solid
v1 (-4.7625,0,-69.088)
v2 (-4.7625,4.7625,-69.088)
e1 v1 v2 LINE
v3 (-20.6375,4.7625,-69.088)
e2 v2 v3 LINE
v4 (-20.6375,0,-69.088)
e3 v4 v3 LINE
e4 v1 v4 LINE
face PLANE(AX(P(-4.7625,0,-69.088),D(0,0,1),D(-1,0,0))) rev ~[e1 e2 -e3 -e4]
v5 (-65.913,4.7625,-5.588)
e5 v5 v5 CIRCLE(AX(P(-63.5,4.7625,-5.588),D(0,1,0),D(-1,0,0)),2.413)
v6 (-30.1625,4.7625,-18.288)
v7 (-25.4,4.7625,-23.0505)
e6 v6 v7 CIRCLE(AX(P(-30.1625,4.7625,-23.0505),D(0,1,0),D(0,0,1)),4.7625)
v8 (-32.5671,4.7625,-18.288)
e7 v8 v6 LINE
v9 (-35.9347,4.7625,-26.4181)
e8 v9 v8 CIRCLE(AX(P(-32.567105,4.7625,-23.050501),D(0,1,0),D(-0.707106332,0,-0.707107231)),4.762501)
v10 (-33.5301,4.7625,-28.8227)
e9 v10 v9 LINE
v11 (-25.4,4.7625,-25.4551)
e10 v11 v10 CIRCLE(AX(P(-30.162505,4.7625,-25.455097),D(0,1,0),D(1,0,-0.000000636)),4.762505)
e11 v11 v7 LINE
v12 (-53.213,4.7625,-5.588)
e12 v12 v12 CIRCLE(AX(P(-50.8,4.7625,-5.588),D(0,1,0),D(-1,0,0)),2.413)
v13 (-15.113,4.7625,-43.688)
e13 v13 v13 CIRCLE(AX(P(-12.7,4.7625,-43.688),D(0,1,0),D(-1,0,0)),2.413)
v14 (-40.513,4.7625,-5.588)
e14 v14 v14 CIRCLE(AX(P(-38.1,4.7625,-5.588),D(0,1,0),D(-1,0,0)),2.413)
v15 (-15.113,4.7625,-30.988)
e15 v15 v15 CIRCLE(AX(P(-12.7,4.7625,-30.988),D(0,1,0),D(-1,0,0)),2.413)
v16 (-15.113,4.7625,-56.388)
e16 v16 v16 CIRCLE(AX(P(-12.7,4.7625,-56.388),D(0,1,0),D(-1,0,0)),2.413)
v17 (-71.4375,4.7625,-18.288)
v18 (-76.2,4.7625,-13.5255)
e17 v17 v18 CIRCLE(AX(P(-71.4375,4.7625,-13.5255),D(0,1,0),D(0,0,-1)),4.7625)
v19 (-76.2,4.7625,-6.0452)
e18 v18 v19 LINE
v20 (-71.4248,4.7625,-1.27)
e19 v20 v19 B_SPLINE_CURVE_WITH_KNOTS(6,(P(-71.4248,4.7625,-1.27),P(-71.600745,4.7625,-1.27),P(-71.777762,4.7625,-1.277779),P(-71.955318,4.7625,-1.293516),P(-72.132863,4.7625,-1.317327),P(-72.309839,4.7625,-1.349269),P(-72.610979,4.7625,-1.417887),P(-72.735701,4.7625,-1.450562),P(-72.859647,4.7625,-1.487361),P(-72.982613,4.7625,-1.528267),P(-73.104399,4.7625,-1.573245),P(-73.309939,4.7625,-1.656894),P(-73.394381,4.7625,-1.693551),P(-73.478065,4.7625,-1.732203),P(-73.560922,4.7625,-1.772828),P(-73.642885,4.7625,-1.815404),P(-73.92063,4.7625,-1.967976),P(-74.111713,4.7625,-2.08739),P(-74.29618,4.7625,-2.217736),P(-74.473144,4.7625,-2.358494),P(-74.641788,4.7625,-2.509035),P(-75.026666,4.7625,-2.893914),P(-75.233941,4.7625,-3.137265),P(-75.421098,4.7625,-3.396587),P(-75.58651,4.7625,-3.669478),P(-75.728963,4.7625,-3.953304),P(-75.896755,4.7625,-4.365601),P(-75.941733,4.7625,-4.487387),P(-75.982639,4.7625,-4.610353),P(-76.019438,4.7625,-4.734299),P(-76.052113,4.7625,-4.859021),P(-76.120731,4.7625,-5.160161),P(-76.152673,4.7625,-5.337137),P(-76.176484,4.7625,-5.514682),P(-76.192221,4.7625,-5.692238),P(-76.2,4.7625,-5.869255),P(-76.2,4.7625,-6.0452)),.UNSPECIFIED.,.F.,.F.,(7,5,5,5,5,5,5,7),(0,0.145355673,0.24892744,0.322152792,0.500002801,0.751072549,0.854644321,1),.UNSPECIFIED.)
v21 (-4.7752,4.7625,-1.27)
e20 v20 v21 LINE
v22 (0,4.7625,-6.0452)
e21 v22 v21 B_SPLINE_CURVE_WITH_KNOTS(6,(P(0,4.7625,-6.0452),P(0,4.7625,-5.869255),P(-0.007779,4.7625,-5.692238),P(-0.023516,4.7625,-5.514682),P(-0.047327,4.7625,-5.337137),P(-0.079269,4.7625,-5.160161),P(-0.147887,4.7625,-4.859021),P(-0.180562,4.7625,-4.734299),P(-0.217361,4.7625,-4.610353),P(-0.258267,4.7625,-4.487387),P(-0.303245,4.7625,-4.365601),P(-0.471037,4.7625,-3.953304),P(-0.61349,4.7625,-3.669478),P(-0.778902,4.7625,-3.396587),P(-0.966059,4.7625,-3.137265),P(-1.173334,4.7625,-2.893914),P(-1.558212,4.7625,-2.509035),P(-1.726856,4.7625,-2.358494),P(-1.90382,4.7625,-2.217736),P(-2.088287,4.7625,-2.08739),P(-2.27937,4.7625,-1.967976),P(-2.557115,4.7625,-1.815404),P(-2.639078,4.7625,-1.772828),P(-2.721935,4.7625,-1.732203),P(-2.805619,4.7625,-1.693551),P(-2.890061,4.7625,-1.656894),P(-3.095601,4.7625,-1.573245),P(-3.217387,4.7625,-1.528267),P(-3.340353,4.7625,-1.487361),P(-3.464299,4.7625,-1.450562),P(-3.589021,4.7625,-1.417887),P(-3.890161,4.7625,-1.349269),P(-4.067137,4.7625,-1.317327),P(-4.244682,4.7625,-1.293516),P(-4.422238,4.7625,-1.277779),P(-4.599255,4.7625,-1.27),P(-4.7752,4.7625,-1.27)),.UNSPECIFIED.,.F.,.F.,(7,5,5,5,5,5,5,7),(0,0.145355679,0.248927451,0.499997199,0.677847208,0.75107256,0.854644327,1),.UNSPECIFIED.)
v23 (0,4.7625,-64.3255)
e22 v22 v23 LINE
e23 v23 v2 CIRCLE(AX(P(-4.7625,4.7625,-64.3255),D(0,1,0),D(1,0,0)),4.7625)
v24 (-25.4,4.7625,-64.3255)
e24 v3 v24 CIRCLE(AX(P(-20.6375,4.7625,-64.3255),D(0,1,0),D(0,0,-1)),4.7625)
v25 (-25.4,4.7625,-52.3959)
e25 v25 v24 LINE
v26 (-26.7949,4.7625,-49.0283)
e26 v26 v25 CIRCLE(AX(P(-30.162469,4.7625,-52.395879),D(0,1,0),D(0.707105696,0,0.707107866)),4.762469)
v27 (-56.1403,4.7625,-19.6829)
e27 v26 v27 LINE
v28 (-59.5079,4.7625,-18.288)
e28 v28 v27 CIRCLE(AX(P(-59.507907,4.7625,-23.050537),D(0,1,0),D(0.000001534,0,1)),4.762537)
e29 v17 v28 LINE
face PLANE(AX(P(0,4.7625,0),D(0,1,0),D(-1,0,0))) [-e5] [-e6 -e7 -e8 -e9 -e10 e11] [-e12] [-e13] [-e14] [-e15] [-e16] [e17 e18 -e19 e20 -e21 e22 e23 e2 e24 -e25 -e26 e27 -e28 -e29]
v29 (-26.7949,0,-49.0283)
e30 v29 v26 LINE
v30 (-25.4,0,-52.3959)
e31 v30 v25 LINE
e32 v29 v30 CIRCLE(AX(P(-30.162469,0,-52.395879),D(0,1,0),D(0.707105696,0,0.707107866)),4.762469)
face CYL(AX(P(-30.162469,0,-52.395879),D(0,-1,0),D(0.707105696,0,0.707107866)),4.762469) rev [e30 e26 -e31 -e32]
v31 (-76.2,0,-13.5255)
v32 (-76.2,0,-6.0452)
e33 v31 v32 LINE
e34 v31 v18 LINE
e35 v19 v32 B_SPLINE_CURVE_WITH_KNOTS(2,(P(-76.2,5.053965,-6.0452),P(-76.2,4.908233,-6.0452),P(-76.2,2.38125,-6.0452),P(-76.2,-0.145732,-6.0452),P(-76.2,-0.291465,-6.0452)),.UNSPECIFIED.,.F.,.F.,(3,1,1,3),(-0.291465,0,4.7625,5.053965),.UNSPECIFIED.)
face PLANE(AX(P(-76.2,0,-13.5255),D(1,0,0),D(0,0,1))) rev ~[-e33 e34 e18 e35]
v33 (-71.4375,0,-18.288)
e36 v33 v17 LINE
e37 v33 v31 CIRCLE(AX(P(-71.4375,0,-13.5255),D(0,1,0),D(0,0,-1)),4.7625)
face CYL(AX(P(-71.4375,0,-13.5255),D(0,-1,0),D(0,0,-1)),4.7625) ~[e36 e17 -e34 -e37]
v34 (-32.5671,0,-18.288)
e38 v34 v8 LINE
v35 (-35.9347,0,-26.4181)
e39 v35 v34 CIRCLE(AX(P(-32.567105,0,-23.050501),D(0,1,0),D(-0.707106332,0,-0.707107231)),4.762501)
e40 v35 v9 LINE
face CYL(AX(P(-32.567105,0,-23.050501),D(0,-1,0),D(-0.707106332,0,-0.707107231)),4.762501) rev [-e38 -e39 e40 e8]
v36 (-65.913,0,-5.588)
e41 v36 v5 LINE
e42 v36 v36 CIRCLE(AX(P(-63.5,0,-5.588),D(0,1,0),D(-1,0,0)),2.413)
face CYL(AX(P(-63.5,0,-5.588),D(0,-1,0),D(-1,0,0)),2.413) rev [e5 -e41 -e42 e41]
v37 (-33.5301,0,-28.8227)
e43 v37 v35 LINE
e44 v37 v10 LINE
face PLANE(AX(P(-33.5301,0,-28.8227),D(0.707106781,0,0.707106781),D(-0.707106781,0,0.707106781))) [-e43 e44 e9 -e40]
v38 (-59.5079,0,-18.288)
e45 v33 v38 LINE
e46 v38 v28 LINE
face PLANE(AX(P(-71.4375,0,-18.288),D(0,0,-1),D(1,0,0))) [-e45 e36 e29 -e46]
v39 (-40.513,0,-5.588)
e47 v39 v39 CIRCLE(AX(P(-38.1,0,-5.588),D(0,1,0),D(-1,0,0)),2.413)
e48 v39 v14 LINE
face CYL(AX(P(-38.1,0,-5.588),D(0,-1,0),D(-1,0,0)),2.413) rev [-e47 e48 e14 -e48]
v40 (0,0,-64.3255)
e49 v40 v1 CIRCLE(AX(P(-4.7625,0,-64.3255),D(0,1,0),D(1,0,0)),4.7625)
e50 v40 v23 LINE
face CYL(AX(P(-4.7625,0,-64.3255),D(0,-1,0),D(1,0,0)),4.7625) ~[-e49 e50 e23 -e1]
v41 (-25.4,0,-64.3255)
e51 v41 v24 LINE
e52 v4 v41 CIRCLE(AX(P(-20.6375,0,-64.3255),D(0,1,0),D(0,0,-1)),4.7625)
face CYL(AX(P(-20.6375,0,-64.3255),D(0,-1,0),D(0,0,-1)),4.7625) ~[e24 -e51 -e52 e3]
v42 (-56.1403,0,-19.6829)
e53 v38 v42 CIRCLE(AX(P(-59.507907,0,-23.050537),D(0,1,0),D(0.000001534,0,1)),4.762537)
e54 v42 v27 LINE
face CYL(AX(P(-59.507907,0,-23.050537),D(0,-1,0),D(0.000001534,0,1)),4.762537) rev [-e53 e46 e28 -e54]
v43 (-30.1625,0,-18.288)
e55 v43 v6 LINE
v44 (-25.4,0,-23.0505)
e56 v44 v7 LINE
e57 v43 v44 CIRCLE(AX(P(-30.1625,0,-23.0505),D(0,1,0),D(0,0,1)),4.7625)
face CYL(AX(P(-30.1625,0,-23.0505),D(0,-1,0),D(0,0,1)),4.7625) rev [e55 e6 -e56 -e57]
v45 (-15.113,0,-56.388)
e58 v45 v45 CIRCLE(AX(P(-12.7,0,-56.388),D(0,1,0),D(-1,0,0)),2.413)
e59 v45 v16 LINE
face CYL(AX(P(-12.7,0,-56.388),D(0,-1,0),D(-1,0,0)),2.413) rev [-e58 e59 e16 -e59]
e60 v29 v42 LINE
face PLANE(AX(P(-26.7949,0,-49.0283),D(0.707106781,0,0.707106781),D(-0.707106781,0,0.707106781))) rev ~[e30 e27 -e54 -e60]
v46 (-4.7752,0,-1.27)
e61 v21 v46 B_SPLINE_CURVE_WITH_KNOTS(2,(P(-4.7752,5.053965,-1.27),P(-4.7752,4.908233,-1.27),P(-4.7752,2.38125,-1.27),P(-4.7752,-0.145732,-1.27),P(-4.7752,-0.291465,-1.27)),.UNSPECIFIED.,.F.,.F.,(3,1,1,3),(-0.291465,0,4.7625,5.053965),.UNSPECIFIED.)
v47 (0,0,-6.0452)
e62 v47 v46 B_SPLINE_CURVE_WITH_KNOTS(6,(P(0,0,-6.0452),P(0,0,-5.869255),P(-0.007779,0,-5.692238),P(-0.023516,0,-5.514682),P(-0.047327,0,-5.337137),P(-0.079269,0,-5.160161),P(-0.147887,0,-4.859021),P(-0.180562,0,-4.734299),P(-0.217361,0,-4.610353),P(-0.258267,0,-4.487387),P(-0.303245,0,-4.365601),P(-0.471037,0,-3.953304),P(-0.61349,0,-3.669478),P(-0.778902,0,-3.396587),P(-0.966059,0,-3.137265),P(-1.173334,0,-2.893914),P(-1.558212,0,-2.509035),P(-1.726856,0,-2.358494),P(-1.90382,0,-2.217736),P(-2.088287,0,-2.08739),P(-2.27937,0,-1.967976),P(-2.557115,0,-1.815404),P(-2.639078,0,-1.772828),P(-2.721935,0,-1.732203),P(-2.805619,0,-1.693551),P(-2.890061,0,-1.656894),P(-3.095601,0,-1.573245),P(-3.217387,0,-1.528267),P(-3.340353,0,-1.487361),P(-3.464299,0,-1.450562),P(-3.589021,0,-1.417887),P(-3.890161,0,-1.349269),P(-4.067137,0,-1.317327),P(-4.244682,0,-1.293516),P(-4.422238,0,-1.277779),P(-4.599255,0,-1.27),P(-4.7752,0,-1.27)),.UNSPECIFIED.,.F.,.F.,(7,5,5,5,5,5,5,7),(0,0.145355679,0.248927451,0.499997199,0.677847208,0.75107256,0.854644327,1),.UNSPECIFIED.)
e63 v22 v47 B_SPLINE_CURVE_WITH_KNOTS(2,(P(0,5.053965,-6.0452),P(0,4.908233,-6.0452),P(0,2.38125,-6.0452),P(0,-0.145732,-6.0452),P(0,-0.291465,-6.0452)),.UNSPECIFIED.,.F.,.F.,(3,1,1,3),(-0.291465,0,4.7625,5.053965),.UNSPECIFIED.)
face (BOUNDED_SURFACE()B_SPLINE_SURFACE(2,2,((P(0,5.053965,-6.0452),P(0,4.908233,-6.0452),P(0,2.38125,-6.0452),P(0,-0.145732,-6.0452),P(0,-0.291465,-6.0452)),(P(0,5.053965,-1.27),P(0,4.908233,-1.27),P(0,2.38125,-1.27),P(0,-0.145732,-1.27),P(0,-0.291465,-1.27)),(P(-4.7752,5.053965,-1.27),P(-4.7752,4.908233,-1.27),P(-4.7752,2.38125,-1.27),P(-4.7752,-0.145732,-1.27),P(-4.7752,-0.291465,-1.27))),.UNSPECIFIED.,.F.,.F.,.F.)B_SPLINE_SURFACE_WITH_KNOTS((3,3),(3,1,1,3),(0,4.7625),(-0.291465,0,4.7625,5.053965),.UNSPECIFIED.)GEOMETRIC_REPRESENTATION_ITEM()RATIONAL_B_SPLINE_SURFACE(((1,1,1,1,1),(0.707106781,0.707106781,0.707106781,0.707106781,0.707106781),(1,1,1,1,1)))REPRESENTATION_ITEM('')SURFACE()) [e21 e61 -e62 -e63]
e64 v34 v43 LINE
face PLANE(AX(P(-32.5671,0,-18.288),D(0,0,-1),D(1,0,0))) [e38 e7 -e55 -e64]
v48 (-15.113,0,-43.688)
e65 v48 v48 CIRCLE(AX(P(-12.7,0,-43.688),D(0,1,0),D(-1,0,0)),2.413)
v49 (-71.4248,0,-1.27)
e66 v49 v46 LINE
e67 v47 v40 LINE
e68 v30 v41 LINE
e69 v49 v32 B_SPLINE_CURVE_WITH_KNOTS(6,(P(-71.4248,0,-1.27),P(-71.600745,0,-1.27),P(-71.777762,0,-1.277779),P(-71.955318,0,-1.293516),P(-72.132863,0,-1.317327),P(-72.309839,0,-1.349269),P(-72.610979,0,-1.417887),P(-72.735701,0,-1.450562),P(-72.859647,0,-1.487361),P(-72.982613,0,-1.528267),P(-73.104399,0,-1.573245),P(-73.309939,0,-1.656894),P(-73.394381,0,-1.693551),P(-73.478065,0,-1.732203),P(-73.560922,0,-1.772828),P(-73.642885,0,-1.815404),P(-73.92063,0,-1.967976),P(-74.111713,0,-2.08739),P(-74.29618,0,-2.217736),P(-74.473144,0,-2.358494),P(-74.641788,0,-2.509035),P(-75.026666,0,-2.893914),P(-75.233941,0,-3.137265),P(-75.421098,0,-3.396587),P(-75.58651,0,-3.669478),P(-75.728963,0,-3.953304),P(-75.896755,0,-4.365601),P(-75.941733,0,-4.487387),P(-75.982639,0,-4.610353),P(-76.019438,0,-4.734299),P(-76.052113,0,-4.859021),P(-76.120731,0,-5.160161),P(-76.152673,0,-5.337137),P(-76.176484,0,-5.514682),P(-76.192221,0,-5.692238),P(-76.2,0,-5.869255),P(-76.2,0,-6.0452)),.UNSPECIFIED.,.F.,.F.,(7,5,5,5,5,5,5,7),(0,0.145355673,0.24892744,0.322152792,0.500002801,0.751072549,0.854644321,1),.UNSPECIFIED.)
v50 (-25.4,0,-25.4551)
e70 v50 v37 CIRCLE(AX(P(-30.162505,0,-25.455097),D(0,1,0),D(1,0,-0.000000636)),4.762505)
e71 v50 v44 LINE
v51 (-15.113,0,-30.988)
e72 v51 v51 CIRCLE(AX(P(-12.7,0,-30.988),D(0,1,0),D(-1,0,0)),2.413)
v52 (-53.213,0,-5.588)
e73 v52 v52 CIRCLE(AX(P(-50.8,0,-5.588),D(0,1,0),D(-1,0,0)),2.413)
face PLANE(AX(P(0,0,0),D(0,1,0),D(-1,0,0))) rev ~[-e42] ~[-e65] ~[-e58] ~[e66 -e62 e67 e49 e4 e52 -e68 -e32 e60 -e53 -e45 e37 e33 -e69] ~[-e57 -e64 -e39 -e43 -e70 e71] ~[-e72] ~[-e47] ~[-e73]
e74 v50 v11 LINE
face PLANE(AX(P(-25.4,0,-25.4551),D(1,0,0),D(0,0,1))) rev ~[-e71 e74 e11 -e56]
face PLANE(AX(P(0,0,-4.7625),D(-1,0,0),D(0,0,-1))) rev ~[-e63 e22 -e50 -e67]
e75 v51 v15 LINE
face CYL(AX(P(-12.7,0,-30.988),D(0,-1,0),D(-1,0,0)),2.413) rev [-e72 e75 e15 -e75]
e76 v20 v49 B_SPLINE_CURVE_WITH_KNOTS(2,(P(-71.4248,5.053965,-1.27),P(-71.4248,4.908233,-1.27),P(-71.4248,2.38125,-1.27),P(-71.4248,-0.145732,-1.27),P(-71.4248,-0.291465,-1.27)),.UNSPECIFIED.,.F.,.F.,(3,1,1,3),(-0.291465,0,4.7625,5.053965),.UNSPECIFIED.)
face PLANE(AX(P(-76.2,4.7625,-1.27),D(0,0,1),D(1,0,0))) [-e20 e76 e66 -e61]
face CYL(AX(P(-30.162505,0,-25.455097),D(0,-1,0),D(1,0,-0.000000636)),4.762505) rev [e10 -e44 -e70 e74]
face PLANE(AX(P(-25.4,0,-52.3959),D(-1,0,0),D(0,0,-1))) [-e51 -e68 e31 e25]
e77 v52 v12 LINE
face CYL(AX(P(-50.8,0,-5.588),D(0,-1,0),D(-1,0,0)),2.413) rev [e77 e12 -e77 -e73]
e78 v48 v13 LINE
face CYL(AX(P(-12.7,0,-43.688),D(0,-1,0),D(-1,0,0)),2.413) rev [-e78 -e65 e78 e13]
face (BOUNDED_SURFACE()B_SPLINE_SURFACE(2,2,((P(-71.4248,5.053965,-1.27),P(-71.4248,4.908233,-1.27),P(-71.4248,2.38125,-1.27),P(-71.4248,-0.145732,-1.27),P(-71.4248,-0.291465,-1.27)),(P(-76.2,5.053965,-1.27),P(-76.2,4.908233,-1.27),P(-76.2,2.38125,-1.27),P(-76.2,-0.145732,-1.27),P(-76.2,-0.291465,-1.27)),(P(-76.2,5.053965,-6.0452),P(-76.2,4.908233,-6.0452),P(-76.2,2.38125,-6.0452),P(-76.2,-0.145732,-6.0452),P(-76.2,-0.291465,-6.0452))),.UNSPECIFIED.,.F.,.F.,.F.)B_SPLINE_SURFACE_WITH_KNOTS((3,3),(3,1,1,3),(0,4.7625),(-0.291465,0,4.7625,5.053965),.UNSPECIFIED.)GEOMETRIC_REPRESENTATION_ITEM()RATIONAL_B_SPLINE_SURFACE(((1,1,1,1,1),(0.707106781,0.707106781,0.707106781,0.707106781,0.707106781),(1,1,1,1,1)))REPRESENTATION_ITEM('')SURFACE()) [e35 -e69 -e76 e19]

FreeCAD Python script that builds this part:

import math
import FreeCAD as App
import Part
import Sketcher
from FreeCAD import Vector
Q = App.Units.Quantity


def edges_at(feature, points):
    """Names of the edges that pass closest to the given points."""
    edges = feature.Shape.Edges
    near = lambda p: min(range(len(edges)), key=lambda i: edges[i].distToShape(Part.Vertex(*p))[0])
    return sorted({f"Edge{near(p) + 1}" for p in points})

doc = App.newDocument("Part")
params = doc.addObject("Spreadsheet::Sheet", "Params")
for row, (alias, value) in enumerate([
    ("sketch1_diameter", "0.19 in"),
    ("sketch1_radius", "0.1875 in"),
    ("pad1_length", "0.1875 in"),
    ("sketch2_height", "0.05 in"),
    ("sketch2_width", "3 in"),
    ("fillet_radius", "0.188 in"),
], start=1):
    params.set(f"A{row}", alias)
    params.set(f"B{row}", "=" + value)
    params.setAlias(f"B{row}", alias)

body = doc.addObject("PartDesign::Body", "Body")

# Sketch on XZ plane
sketch1 = body.newObject("Sketcher::SketchObject", "Sketch")
sketch1.AttachmentSupport = (doc.getObject("XZ_Plane"), [""])
sketch1.MapMode = "FlatFace"
sketch1.addGeometry([
    Part.ArcOfCircle(Part.Circle(Vector(-4.8, -4.8, 0), Vector(0, 0, 1), 4.8), math.radians(0), math.radians(90)),  # 0
    Part.LineSegment(Vector(0, -4.8, 0), Vector(0, -64.3, 0)),  # 1
    Part.ArcOfCircle(Part.Circle(Vector(-4.8, -64.3, 0), Vector(0, 0, 1), 4.8), math.radians(-90), math.radians(0)),  # 2
    Part.LineSegment(Vector(-4.8, -69.1, 0), Vector(-20.6, -69.1, 0)),  # 3
    Part.ArcOfCircle(Part.Circle(Vector(-20.6, -64.3, 0), Vector(0, 0, 1), 4.8), math.radians(180), math.radians(270)),  # 4
    Part.LineSegment(Vector(-25.4, -64.3, 0), Vector(-25.4, -52.4, 0)),  # 5
    Part.ArcOfCircle(Part.Circle(Vector(-30.2, -52.4, 0), Vector(0, 0, 1), 4.8), math.radians(0), math.radians(45)),  # 6
    Part.LineSegment(Vector(-26.8, -49, 0), Vector(-56.1, -19.7, 0)),  # 7
    Part.ArcOfCircle(Part.Circle(Vector(-59.5, -23.1, 0), Vector(0, 0, 1), 4.8), math.radians(45), math.radians(90)),  # 8
    Part.LineSegment(Vector(-59.5, -18.3, 0), Vector(-71.4, -18.3, 0)),  # 9
    Part.ArcOfCircle(Part.Circle(Vector(-71.4, -13.5, 0), Vector(0, 0, 1), 4.8), math.radians(180), math.radians(270)),  # 10
    Part.LineSegment(Vector(-76.2, -13.5, 0), Vector(-76.2, -4.8, 0)),  # 11
    Part.ArcOfCircle(Part.Circle(Vector(-71.4, -4.8, 0), Vector(0, 0, 1), 4.8), math.radians(90), math.radians(180)),  # 12
    Part.LineSegment(Vector(-71.4, 0, 0), Vector(-4.8, 0, 0)),  # 13
    Part.Circle(Vector(-12.7, -56.4, 0), Vector(0, 0, 1), 2.4),  # 14
    Part.Circle(Vector(-12.7, -43.7, 0), Vector(0, 0, 1), 2.4),  # 15
    Part.Circle(Vector(-12.7, -31, 0), Vector(0, 0, 1), 2.4),  # 16
    Part.LineSegment(Vector(-35.9, -26.4, 0), Vector(-33.5, -28.8, 0)),  # 17
    Part.ArcOfCircle(Part.Circle(Vector(-30.2, -25.5, 0), Vector(0, 0, 1), 4.8), math.radians(-135), math.radians(0)),  # 18
    Part.LineSegment(Vector(-25.4, -25.5, 0), Vector(-25.4, -23.1, 0)),  # 19
    Part.ArcOfCircle(Part.Circle(Vector(-30.2, -23.1, 0), Vector(0, 0, 1), 4.8), math.radians(0), math.radians(90)),  # 20
    Part.LineSegment(Vector(-30.2, -18.3, 0), Vector(-32.6, -18.3, 0)),  # 21
    Part.ArcOfCircle(Part.Circle(Vector(-32.6, -23.1, 0), Vector(0, 0, 1), 4.8), math.radians(90), math.radians(225)),  # 22
    Part.Circle(Vector(-38.1, -5.6, 0), Vector(0, 0, 1), 2.4),  # 23
    Part.Circle(Vector(-50.8, -5.6, 0), Vector(0, 0, 1), 2.4),  # 24
    Part.Circle(Vector(-63.5, -5.6, 0), Vector(0, 0, 1), 2.4),  # 25
], False)
sketch1.addConstraint([
    Sketcher.Constraint("Tangent", 0, 1, 1, 1),
    Sketcher.Constraint("Tangent", 1, 2, 2, 2),
    Sketcher.Constraint("Tangent", 2, 1, 3, 1),
    Sketcher.Constraint("Tangent", 3, 2, 4, 2),
    Sketcher.Constraint("Tangent", 4, 1, 5, 1),
    Sketcher.Constraint("Tangent", 5, 2, 6, 1),
    Sketcher.Constraint("Tangent", 6, 2, 7, 1),
    Sketcher.Constraint("Tangent", 7, 2, 8, 1),
    Sketcher.Constraint("Tangent", 8, 2, 9, 1),
    Sketcher.Constraint("Tangent", 9, 2, 10, 2),
    Sketcher.Constraint("Tangent", 10, 1, 11, 1),
    Sketcher.Constraint("Tangent", 11, 2, 12, 2),
    Sketcher.Constraint("Tangent", 12, 1, 13, 1),
    Sketcher.Constraint("Tangent", 13, 2, 0, 2),
    Sketcher.Constraint("Tangent", 17, 2, 18, 1),
    Sketcher.Constraint("Tangent", 18, 2, 19, 1),
    Sketcher.Constraint("Tangent", 19, 2, 20, 1),
    Sketcher.Constraint("Tangent", 20, 2, 21, 1),
    Sketcher.Constraint("Tangent", 21, 2, 22, 1),
    Sketcher.Constraint("Tangent", 22, 2, 17, 1),
    Sketcher.Constraint("Vertical", 1),
    Sketcher.Constraint("Horizontal", 3),
    Sketcher.Constraint("Vertical", 5),
    Sketcher.Constraint("Horizontal", 9),
    Sketcher.Constraint("Vertical", 11),
    Sketcher.Constraint("Horizontal", 13),
    Sketcher.Constraint("Vertical", 19),
    Sketcher.Constraint("Horizontal", 21),
    Sketcher.Constraint("Equal", 0, 2),
    Sketcher.Constraint("Equal", 2, 4),
    Sketcher.Constraint("Equal", 4, 6),
    Sketcher.Constraint("Equal", 6, 8),
    Sketcher.Constraint("Equal", 8, 10),
    Sketcher.Constraint("Equal", 10, 12),
    Sketcher.Constraint("Equal", 14, 15),
    Sketcher.Constraint("Equal", 15, 16),
    Sketcher.Constraint("Equal", 12, 18),
    Sketcher.Constraint("Equal", 18, 20),
    Sketcher.Constraint("Equal", 20, 22),
    Sketcher.Constraint("Equal", 16, 23),
    Sketcher.Constraint("Equal", 23, 24),
    Sketcher.Constraint("Equal", 24, 25),
    Sketcher.Constraint("PointOnObject", 0, 1, -2),
    Sketcher.Constraint("PointOnObject", 12, 1, -1),
    Sketcher.Constraint("Parallel", 7, 17),
    Sketcher.Constraint("Horizontal", 8, 3, 20, 3),
    Sketcher.Constraint("Horizontal", 23, 3, 24, 3),
    Sketcher.Constraint("Horizontal", 24, 3, 25, 3),
    Sketcher.Constraint("Vertical", 14, 3, 15, 3),
    Sketcher.Constraint("Vertical", 15, 3, 16, 3),
    Sketcher.Constraint("Vertical", 6, 3, 18, 3),
    Sketcher.Constraint("Equal", 9, 5),
    Sketcher.Constraint("Equal", 21, 19),
    Sketcher.Constraint("Diameter", 14, Q("0.19 in")),
    Sketcher.Constraint("DistanceX", 4, 1, -1, 1, Q("1 in")),
    Sketcher.Constraint("DistanceX", 10, 1, -1, 1, Q("3 in")),
    Sketcher.Constraint("Radius", 0, Q("0.1875 in")),
    Sketcher.Constraint("DistanceY", 14, 3, 16, 3, Q("1 in")),
    Sketcher.Constraint("DistanceX", 25, 3, 23, 3, Q("1 in")),
    Sketcher.Constraint("DistanceY", 2, 1, 15, 3, Q("1 in")),
    Sketcher.Constraint("DistanceX", 14, 3, -1, 1, Q("0.5 in")),
    Sketcher.Constraint("DistanceX", 23, 3, -1, 1, Q("1.5 in")),
    Sketcher.Constraint("DistanceY", 14, 3, 15, 3, Q("0.5 in")),
    Sketcher.Constraint("DistanceX", 24, 3, 23, 3, Q("0.5 in")),
    Sketcher.Constraint("DistanceY", 8, 2, 25, 3, Q("0.5 in")),
    Sketcher.Constraint("DistanceY", 8, 2, -1, 1, Q("0.72 in")),
    Sketcher.Constraint("DistanceX", 9, 2, 9, 1, Q("11.9296 mm")),
    Sketcher.Constraint("DistanceX", 21, 2, 21, 1, Q("2.4046 mm")),
])
sketch1.setExpression("Constraints[53]", "Params.sketch1_diameter")
sketch1.setExpression("Constraints[56]", "Params.sketch1_radius")
pad1 = body.newObject("PartDesign::Pad", "Pad")
pad1.Profile = sketch1
pad1.setExpression("Length", "Params.pad1_length")
pad1.Reversed = True

# Sketch on XZ plane
sketch2 = body.newObject("Sketcher::SketchObject", "Sketch001")
sketch2.AttachmentSupport = (doc.getObject("XZ_Plane"), [""])
sketch2.MapMode = "FlatFace"
sketch2.AttachmentOffset = App.Placement(Vector(0, 0, -0.1875 * 25.4), App.Rotation())
sketch2.addGeometry([
    Part.LineSegment(Vector(-76.2, 0, 0), Vector(0, 0, 0)),
    Part.LineSegment(Vector(0, 0, 0), Vector(0, -1.3, 0)),
    Part.LineSegment(Vector(0, -1.3, 0), Vector(-76.2, -1.3, 0)),
    Part.LineSegment(Vector(-76.2, -1.3, 0), Vector(-76.2, 0, 0)),
], False)
sketch2.addConstraint([
    Sketcher.Constraint("Coincident", 0, 2, 1, 1),
    Sketcher.Constraint("Coincident", 1, 2, 2, 1),
    Sketcher.Constraint("Coincident", 2, 2, 3, 1),
    Sketcher.Constraint("Coincident", 3, 2, 0, 1),
    Sketcher.Constraint("Horizontal", 0),
    Sketcher.Constraint("Vertical", 1),
    Sketcher.Constraint("Horizontal", 2),
    Sketcher.Constraint("Vertical", 3),
    Sketcher.Constraint("Coincident", 0, 2, -1, 1),
    Sketcher.Constraint("DistanceY", 1, 2, 1, 1, Q("0.05 in")),
    Sketcher.Constraint("DistanceX", 0, 1, 0, 2, Q("3 in")),
])
sketch2.setExpression("Constraints[9]", "Params.sketch2_height")
sketch2.setExpression("Constraints[10]", "Params.sketch2_width")
pocket1 = body.newObject("PartDesign::Pocket", "Pocket")
pocket1.Profile = sketch2
pocket1.Type = "ThroughAll"
pocket1.Reversed = True
doc.recompute()

fillet = body.newObject("PartDesign::Fillet", "Fillet")
fillet.Base = (pocket1, edges_at(pocket1, [(-74.675, 2.381, -1.27), (-1.525, 2.381, -1.27)]))
fillet.setExpression("Radius", "Params.fillet_radius")

doc.recompute()
